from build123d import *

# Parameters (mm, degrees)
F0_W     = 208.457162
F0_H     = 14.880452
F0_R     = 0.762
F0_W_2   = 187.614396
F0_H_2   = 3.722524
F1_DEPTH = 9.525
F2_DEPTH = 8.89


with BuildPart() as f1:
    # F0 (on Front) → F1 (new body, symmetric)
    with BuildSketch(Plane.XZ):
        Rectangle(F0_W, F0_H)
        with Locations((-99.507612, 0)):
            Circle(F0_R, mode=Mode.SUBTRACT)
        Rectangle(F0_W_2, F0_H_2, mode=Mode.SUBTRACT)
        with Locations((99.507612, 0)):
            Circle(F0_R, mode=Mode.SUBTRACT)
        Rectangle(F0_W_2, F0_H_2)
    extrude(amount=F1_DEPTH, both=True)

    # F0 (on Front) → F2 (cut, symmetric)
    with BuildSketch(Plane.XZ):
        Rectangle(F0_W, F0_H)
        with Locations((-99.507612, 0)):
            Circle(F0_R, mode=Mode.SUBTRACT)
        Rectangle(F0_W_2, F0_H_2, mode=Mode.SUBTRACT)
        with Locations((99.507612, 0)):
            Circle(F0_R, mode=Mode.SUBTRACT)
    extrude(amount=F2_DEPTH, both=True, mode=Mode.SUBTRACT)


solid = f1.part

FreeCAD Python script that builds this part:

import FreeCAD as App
import Part
import Sketcher
Q = App.Units.Quantity


def add_polygon(sketch, points):
    """Adds a closed chain of lines whose ends are joined by coincident constraints."""
    first, n = sketch.GeometryCount, len(points)
    for a, b in zip(points, points[1:] + points[:1]):
        sketch.addGeometry(Part.LineSegment(App.Vector(*a, 0), App.Vector(*b, 0)), False)
    for i in range(n):
        sketch.addConstraint(Sketcher.Constraint("Coincident", first + i, 2, first + (i + 1) % n, 1))

doc = App.newDocument("Part")
params = doc.addObject("Spreadsheet::Sheet", "Params")
for row, (alias, value) in enumerate([
    ("sketch1_diameter", "0.06 in"),
    ("pad1_length", "0.75 in"),
    ("sketch2_diameter", "0.06 in"),
    ("pocket1_length", "0.7 in"),
], start=1):
    params.set(f"A{row}", alias)
    params.set(f"B{row}", "=" + value)
    params.setAlias(f"B{row}", alias)

body = doc.addObject("PartDesign::Body", "Body")

# Sketch on XZ plane
sketch1 = body.newObject("Sketcher::SketchObject", "Sketch")
sketch1.AttachmentSupport = (doc.getObject("XZ_Plane"), [""])
sketch1.MapMode = "FlatFace"
add_polygon(sketch1, [(-104.2, 7.4), (-104.2, -7.4), (104.2, -7.4), (104.2, 7.4)])  # lines 0-3
sketch1.addGeometry(Part.Circle(App.Vector(-99.5, 0, 0), App.Vector(0, 0, 1), 0.8), False)  # 4
sketch1.addGeometry(Part.Circle(App.Vector(99.5, 0, 0), App.Vector(0, 0, 1), 0.8), False)  # 5
sketch1.addConstraint(Sketcher.Constraint("Vertical", 0))
sketch1.addConstraint(Sketcher.Constraint("Horizontal", 1))
sketch1.addConstraint(Sketcher.Constraint("Vertical", 2))
sketch1.addConstraint(Sketcher.Constraint("Horizontal", 3))
sketch1.addConstraint(Sketcher.Constraint("Equal", 4, 5))
sketch1.addConstraint(Sketcher.Constraint("Symmetric", 4, 3, 5, 3, -1, 1))
sketch1.addConstraint(Sketcher.Constraint("Symmetric", 0, 2, 2, 2, -1, 1))
sketch1.addConstraint(Sketcher.Constraint("PointOnObject", 4, 3, -1))
sketch1.addConstraint(Sketcher.Constraint("Diameter", 4, Q("0.06 in")))
sketch1.addConstraint(Sketcher.Constraint("DistanceX", 1, 1, 1, 2, Q("208.457162 mm")))
sketch1.addConstraint(Sketcher.Constraint("DistanceY", 0, 2, 0, 1, Q("14.880452 mm")))
sketch1.addConstraint(Sketcher.Constraint("DistanceX", 4, 3, -1, 1, Q("99.507612 mm")))
sketch1.setExpression("Constraints[12]", "Params.sketch1_diameter")
pad1 = body.newObject("PartDesign::Pad", "Pad")
pad1.Profile = sketch1
pad1.setExpression("Length", "Params.pad1_length")
pad1.Midplane = True

# Sketch on XZ plane
sketch2 = body.newObject("Sketcher::SketchObject", "Sketch001")
sketch2.AttachmentSupport = (doc.getObject("XZ_Plane"), [""])
sketch2.MapMode = "FlatFace"
add_polygon(sketch2, [(-104.2, 7.4), (-104.2, -7.4), (104.2, -7.4), (104.2, 7.4)])  # lines 0-3
sketch2.addGeometry(Part.Circle(App.Vector(-99.5, 0, 0), App.Vector(0, 0, 1), 0.8), False)  # 4
add_polygon(sketch2, [(93.8, -1.9), (-93.8, -1.9), (-93.8, 1.9), (93.8, 1.9)])  # lines 5-8
sketch2.addGeometry(Part.Circle(App.Vector(99.5, 0, 0), App.Vector(0, 0, 1), 0.8), False)  # 9
sketch2.addConstraint(Sketcher.Constraint("Vertical", 0))
sketch2.addConstraint(Sketcher.Constraint("Horizontal", 1))
sketch2.addConstraint(Sketcher.Constraint("Vertical", 2))
sketch2.addConstraint(Sketcher.Constraint("Horizontal", 3))
sketch2.addConstraint(Sketcher.Constraint("Horizontal", 5))
sketch2.addConstraint(Sketcher.Constraint("Vertical", 6))
sketch2.addConstraint(Sketcher.Constraint("Horizontal", 7))
sketch2.addConstraint(Sketcher.Constraint("Vertical", 8))
sketch2.addConstraint(Sketcher.Constraint("Equal", 4, 9))
sketch2.addConstraint(Sketcher.Constraint("Symmetric", 4, 3, 9, 3, -1, 1))
sketch2.addConstraint(Sketcher.Constraint("Symmetric", 0, 2, 2, 2, -1, 1))
sketch2.addConstraint(Sketcher.Constraint("Symmetric", 5, 2, 7, 2, -1, 1))
sketch2.addConstraint(Sketcher.Constraint("PointOnObject", 4, 3, -1))
sketch2.addConstraint(Sketcher.Constraint("Diameter", 4, Q("0.06 in")))
sketch2.addConstraint(Sketcher.Constraint("DistanceX", 5, 2, -1, 1, Q("93.807198 mm")))
sketch2.addConstraint(Sketcher.Constraint("DistanceX", 1, 1, 1, 2, Q("208.457162 mm")))
sketch2.addConstraint(Sketcher.Constraint("DistanceY", 0, 2, 0, 1, Q("14.880452 mm")))
sketch2.addConstraint(Sketcher.Constraint("DistanceY", 6, 1, 6, 2, Q("3.722524 mm")))
sketch2.addConstraint(Sketcher.Constraint("DistanceX", 4, 3, -1, 1, Q("99.507612 mm")))
sketch2.setExpression("Constraints[21]", "Params.sketch2_diameter")
pocket1 = body.newObject("PartDesign::Pocket", "Pocket")
pocket1.Profile = sketch2
pocket1.setExpression("Length", "Params.pocket1_length")
pocket1.Midplane = True

doc.recompute()
